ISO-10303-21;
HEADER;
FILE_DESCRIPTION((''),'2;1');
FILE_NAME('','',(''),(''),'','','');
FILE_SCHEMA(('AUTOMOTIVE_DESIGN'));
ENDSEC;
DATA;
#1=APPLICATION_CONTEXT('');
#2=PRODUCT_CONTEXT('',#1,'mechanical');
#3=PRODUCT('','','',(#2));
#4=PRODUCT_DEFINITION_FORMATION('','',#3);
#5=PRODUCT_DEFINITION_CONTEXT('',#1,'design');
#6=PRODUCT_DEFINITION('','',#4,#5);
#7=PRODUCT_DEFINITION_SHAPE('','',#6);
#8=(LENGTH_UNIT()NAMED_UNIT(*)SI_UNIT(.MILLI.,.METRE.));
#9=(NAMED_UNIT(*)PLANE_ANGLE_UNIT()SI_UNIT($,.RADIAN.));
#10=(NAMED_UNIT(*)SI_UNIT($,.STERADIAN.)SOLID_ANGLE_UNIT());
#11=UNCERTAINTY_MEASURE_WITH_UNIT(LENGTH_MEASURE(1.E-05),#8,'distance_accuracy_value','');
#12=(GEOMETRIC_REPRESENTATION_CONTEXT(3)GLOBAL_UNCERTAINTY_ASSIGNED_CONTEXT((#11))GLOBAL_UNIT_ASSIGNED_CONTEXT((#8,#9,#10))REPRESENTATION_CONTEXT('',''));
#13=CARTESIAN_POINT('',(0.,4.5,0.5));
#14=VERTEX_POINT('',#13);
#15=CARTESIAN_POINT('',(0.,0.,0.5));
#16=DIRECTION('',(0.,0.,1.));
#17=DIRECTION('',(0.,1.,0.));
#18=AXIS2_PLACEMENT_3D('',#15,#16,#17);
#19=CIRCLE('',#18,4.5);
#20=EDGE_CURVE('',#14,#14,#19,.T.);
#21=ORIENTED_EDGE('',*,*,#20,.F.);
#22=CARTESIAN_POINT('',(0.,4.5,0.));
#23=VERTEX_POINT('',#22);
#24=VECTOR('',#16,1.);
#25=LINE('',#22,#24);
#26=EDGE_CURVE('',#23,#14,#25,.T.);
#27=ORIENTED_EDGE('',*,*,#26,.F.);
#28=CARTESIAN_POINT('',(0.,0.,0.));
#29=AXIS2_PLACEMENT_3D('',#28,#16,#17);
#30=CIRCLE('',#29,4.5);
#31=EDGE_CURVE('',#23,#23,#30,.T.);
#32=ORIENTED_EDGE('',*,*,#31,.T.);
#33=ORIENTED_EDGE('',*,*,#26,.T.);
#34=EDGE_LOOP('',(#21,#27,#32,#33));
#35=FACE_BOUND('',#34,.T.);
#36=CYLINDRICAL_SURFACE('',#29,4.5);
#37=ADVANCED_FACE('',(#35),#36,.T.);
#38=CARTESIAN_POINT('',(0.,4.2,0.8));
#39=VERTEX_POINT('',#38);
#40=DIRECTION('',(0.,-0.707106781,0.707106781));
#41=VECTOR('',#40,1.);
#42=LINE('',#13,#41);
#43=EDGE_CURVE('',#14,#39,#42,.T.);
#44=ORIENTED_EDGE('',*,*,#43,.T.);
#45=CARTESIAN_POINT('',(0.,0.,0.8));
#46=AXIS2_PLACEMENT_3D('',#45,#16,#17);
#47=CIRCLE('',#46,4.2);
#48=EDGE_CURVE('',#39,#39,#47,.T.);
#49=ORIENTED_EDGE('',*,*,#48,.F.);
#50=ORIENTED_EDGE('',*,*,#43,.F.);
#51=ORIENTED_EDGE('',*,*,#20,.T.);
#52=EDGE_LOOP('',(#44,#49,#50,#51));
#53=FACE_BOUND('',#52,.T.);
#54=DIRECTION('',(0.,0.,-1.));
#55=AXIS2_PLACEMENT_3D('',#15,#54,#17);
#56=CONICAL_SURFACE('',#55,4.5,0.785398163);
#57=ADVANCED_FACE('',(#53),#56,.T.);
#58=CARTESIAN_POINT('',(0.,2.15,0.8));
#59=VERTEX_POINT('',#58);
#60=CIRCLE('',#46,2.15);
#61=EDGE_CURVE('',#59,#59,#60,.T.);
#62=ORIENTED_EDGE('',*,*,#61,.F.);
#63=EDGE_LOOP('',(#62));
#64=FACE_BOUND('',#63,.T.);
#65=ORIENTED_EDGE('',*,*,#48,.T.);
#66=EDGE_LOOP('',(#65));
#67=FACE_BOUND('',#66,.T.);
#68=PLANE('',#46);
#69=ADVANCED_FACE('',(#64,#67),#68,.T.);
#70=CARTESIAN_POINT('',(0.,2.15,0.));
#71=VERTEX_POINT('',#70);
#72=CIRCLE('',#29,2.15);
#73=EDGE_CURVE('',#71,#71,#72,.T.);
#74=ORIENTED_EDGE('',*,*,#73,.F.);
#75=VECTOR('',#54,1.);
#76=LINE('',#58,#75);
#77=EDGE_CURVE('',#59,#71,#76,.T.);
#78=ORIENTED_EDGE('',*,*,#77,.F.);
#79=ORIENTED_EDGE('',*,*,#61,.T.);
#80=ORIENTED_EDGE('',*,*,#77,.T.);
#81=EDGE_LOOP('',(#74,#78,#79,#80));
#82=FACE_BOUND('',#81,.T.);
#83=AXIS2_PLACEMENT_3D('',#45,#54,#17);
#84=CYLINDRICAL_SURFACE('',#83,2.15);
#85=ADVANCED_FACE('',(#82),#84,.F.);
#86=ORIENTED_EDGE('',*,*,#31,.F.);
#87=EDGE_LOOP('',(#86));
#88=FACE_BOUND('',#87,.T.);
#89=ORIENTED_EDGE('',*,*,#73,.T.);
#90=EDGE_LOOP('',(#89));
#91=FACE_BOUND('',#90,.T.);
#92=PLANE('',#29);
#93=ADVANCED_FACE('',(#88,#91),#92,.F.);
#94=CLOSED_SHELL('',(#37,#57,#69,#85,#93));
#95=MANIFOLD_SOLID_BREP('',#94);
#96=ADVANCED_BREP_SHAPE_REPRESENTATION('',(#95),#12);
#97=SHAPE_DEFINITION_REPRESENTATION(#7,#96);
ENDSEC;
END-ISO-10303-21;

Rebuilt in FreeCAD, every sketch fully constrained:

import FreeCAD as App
import Part
import Sketcher

V = App.Vector
Q = App.Units.Quantity


def add_polygon(sketch, points):
    """Adds a closed chain of lines whose ends are joined by coincident constraints."""
    first, n = sketch.GeometryCount, len(points)
    for a, b in zip(points, points[1:] + points[:1]):
        sketch.addGeometry(Part.LineSegment(App.Vector(*a, 0), App.Vector(*b, 0)), False)
    for i in range(n):
        sketch.addConstraint(Sketcher.Constraint("Coincident", first + i, 2, first + (i + 1) % n, 1))

doc = App.newDocument("Part")
params = doc.addObject("Spreadsheet::Sheet", "Params")
for row, (alias, value) in enumerate([
    ("sketch1_height", "0.5 mm"),
    ("sketch1_height2", "0.8 mm"),
    ("sketch1_width", "2.35 mm"),
    ("revolution_angle", "360 deg"),
], start=1):
    params.set(f"A{row}", alias)
    params.set(f"B{row}", "=" + value)
    params.setAlias(f"B{row}", alias)

body = doc.addObject("PartDesign::Body", "Body")

# Sketch on YZ plane
sketch1 = body.newObject("Sketcher::SketchObject", "Sketch")
sketch1.AttachmentSupport = (doc.getObject("YZ_Plane"), [""])
sketch1.MapMode = "FlatFace"
add_polygon(sketch1, [(2.15, 0), (4.5, 0), (4.5, 0.5), (4.2, 0.8), (2.15, 0.8)])  # lines 0-4
sketch1.addConstraint(Sketcher.Constraint("Horizontal", 0))
sketch1.addConstraint(Sketcher.Constraint("Vertical", 1))
sketch1.addConstraint(Sketcher.Constraint("Horizontal", 3))
sketch1.addConstraint(Sketcher.Constraint("Vertical", 4))
sketch1.addConstraint(Sketcher.Constraint("PointOnObject", 0, 2, -1))
sketch1.addConstraint(Sketcher.Constraint("Angle", 2, Q("135 deg")))
sketch1.addConstraint(Sketcher.Constraint("DistanceY", 1, 1, 1, 2, Q("0.5 mm")))
sketch1.addConstraint(Sketcher.Constraint("DistanceY", 4, 2, 4, 1, Q("0.8 mm")))
sketch1.addConstraint(Sketcher.Constraint("DistanceX", 0, 1, 0, 2, Q("2.35 mm")))
sketch1.addConstraint(Sketcher.Constraint("DistanceX", -1, 1, 0, 2, Q("4.5 mm")))
sketch1.setExpression("Constraints[11]", "Params.sketch1_height")
sketch1.setExpression("Constraints[12]", "Params.sketch1_height2")
sketch1.setExpression("Constraints[13]", "Params.sketch1_width")
revolution = body.newObject("PartDesign::Revolution", "Revolution")
revolution.Profile = sketch1
revolution.ReferenceAxis = (sketch1, ["V_Axis"])
revolution.setExpression("Angle", "Params.revolution_angle")

doc.recompute()
